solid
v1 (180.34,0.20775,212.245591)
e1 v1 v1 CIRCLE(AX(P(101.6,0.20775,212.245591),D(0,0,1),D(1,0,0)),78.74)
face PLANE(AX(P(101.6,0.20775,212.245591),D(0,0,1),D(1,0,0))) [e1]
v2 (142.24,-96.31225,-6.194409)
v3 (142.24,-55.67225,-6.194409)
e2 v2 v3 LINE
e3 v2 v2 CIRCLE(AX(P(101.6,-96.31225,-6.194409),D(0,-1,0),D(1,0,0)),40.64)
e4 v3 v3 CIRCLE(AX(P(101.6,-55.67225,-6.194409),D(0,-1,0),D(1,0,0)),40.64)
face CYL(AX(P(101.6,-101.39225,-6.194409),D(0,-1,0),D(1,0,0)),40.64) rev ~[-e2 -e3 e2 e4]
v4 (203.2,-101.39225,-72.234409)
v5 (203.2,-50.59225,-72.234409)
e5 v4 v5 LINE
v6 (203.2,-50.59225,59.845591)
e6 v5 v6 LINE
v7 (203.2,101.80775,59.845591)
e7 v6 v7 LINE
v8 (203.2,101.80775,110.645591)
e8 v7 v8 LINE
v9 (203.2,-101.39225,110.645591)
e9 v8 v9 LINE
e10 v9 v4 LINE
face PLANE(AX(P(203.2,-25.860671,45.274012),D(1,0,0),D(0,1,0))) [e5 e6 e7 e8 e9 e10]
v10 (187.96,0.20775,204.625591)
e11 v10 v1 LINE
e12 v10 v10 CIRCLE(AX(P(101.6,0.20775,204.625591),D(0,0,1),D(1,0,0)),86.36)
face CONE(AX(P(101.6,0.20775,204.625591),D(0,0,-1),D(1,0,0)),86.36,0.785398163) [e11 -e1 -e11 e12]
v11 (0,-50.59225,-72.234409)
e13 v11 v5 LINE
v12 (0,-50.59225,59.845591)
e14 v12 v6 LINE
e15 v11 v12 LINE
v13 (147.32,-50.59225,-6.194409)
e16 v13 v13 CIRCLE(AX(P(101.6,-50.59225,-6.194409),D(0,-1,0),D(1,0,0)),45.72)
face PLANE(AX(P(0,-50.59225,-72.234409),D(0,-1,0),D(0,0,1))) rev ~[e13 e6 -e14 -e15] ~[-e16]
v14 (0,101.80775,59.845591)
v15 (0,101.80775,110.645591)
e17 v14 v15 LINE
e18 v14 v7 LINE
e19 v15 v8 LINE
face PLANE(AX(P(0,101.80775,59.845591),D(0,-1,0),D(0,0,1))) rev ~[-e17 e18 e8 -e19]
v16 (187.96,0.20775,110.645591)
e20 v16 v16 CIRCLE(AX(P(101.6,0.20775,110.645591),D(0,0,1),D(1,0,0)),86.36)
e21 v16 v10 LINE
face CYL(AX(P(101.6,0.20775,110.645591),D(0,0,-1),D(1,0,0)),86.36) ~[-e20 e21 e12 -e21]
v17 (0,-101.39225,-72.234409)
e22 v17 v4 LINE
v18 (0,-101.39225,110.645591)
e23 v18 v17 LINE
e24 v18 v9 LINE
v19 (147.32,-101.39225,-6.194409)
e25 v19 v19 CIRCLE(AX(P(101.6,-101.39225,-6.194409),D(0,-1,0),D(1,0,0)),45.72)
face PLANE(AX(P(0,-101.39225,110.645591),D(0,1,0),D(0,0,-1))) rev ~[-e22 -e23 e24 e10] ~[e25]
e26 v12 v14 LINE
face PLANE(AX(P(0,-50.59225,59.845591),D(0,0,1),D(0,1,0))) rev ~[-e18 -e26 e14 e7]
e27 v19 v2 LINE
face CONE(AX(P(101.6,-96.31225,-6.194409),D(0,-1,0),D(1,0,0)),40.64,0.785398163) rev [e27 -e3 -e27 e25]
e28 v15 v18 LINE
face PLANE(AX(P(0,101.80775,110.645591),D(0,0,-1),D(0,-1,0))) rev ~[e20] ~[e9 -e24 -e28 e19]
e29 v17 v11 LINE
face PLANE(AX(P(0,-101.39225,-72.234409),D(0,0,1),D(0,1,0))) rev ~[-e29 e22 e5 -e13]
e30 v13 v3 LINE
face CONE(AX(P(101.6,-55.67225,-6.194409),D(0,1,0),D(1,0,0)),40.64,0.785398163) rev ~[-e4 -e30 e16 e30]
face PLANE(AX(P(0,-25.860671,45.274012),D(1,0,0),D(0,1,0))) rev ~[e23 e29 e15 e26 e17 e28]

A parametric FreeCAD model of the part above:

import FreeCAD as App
import Part
import Sketcher

V = App.Vector
Q = App.Units.Quantity


def edges_at(feature, points):
    """Names of the edges that pass closest to the given points."""
    edges = feature.Shape.Edges
    near = lambda p: min(range(len(edges)), key=lambda i: edges[i].distToShape(Part.Vertex(*p))[0])
    return sorted({f"Edge{near(p) + 1}" for p in points})


def add_polygon(sketch, points):
    """Adds a closed chain of lines whose ends are joined by coincident constraints."""
    first, n = sketch.GeometryCount, len(points)
    for a, b in zip(points, points[1:] + points[:1]):
        sketch.addGeometry(Part.LineSegment(App.Vector(*a, 0), App.Vector(*b, 0)), False)
    for i in range(n):
        sketch.addConstraint(Sketcher.Constraint("Coincident", first + i, 2, first + (i + 1) % n, 1))

doc = App.newDocument("Part")
body = doc.addObject("PartDesign::Body", "Body")

# Sketch on YZ plane
sketch1 = body.newObject("Sketcher::SketchObject", "Sketch")
sketch1.AttachmentSupport = (doc.getObject("YZ_Plane"), [""])
sketch1.MapMode = "FlatFace"
add_polygon(sketch1, [(-101.39225, -72.234409), (-50.59225, -72.234409), (-50.59225, 59.845591), (101.80775, 59.845591), (101.80775, 110.645591), (-101.39225, 110.645591)])  # lines 0-5
sketch1.addConstraint([
    Sketcher.Constraint("Horizontal", 0),
    Sketcher.Constraint("Vertical", 1),
    Sketcher.Constraint("Horizontal", 2),
    Sketcher.Constraint("Vertical", 3),
    Sketcher.Constraint("Horizontal", 4),
    Sketcher.Constraint("Vertical", 5),
    Sketcher.Constraint("Equal", 0, 3),
    Sketcher.Constraint("DistanceX", 0, 1, 0, 2, Q("2 in")),
    Sketcher.Constraint("DistanceX", 2, 1, 2, 2, Q("6 in")),
    Sketcher.Constraint("DistanceY", 1, 1, 1, 2, Q("5.2 in")),
    Sketcher.Constraint("DistanceX", 0, 2, -1, 1, Q("50.59225 mm")),
    Sketcher.Constraint("DistanceY", 0, 2, -1, 1, Q("72.234409 mm")),
])
pad1 = body.newObject("PartDesign::Pad", "Pad")
pad1.Profile = sketch1
pad1.Length = Q("8 in")

# Sketch on XZ plane
sketch2 = body.newObject("Sketcher::SketchObject", "Sketch001")
sketch2.AttachmentSupport = (doc.getObject("XZ_Plane"), [""])
sketch2.MapMode = "FlatFace"
sketch2.AttachmentOffset = App.Placement(V(0, 0, 101.39225), App.Rotation())
sketch2.addGeometry(Part.Circle(V(101.6, -6.194409, 0), V(0, 0, 1), 40.64), False)
sketch2.addConstraint([
    Sketcher.Constraint("Diameter", 0, Q("3.2 in")),
    Sketcher.Constraint("DistanceX", -1, 1, 0, 3, Q("4 in")),
    Sketcher.Constraint("DistanceY", 0, 3, -1, 1, Q("6.194409 mm")),
])
pocket1 = body.newObject("PartDesign::Pocket", "Pocket")
pocket1.Profile = sketch2
pocket1.Length = Q("25 in")

# Sketch on XY plane
sketch3 = body.newObject("Sketcher::SketchObject", "Sketch002")
sketch3.AttachmentSupport = (doc.getObject("XY_Plane"), [""])
sketch3.MapMode = "FlatFace"
sketch3.AttachmentOffset = App.Placement(V(0, 0, 110.645591), App.Rotation())
sketch3.addGeometry(Part.Circle(V(101.6, 0.20775, 0), V(0, 0, 1), 86.36), False)
sketch3.addConstraint([
    Sketcher.Constraint("Diameter", 0, Q("6.8 in")),
    Sketcher.Constraint("DistanceX", -1, 1, 0, 3, Q("4 in")),
    Sketcher.Constraint("DistanceY", -1, 1, 0, 3, Q("0.20775 mm")),
])
pad2 = body.newObject("PartDesign::Pad", "Pad001")
pad2.Profile = sketch3
pad2.Length = Q("4 in")
doc.recompute()

chamfer = body.newObject("PartDesign::Chamfer", "Chamfer")
chamfer.Base = (pad2, edges_at(pad2, [(15.24, 0.208, 212.246)]))
chamfer.ChamferType = "Two distances"
chamfer.Size = Q("0.3 in")
chamfer.Size2 = Q("0.3 in")
doc.recompute()

chamfer2 = body.newObject("PartDesign::Chamfer", "Chamfer001")
chamfer2.Base = (chamfer, edges_at(chamfer, [(60.96, -101.392, -6.194), (60.96, -50.592, -6.194)]))
chamfer2.ChamferType = "Two distances"
chamfer2.Size = Q("0.2 in")
chamfer2.Size2 = Q("0.2 in")

doc.recompute()
